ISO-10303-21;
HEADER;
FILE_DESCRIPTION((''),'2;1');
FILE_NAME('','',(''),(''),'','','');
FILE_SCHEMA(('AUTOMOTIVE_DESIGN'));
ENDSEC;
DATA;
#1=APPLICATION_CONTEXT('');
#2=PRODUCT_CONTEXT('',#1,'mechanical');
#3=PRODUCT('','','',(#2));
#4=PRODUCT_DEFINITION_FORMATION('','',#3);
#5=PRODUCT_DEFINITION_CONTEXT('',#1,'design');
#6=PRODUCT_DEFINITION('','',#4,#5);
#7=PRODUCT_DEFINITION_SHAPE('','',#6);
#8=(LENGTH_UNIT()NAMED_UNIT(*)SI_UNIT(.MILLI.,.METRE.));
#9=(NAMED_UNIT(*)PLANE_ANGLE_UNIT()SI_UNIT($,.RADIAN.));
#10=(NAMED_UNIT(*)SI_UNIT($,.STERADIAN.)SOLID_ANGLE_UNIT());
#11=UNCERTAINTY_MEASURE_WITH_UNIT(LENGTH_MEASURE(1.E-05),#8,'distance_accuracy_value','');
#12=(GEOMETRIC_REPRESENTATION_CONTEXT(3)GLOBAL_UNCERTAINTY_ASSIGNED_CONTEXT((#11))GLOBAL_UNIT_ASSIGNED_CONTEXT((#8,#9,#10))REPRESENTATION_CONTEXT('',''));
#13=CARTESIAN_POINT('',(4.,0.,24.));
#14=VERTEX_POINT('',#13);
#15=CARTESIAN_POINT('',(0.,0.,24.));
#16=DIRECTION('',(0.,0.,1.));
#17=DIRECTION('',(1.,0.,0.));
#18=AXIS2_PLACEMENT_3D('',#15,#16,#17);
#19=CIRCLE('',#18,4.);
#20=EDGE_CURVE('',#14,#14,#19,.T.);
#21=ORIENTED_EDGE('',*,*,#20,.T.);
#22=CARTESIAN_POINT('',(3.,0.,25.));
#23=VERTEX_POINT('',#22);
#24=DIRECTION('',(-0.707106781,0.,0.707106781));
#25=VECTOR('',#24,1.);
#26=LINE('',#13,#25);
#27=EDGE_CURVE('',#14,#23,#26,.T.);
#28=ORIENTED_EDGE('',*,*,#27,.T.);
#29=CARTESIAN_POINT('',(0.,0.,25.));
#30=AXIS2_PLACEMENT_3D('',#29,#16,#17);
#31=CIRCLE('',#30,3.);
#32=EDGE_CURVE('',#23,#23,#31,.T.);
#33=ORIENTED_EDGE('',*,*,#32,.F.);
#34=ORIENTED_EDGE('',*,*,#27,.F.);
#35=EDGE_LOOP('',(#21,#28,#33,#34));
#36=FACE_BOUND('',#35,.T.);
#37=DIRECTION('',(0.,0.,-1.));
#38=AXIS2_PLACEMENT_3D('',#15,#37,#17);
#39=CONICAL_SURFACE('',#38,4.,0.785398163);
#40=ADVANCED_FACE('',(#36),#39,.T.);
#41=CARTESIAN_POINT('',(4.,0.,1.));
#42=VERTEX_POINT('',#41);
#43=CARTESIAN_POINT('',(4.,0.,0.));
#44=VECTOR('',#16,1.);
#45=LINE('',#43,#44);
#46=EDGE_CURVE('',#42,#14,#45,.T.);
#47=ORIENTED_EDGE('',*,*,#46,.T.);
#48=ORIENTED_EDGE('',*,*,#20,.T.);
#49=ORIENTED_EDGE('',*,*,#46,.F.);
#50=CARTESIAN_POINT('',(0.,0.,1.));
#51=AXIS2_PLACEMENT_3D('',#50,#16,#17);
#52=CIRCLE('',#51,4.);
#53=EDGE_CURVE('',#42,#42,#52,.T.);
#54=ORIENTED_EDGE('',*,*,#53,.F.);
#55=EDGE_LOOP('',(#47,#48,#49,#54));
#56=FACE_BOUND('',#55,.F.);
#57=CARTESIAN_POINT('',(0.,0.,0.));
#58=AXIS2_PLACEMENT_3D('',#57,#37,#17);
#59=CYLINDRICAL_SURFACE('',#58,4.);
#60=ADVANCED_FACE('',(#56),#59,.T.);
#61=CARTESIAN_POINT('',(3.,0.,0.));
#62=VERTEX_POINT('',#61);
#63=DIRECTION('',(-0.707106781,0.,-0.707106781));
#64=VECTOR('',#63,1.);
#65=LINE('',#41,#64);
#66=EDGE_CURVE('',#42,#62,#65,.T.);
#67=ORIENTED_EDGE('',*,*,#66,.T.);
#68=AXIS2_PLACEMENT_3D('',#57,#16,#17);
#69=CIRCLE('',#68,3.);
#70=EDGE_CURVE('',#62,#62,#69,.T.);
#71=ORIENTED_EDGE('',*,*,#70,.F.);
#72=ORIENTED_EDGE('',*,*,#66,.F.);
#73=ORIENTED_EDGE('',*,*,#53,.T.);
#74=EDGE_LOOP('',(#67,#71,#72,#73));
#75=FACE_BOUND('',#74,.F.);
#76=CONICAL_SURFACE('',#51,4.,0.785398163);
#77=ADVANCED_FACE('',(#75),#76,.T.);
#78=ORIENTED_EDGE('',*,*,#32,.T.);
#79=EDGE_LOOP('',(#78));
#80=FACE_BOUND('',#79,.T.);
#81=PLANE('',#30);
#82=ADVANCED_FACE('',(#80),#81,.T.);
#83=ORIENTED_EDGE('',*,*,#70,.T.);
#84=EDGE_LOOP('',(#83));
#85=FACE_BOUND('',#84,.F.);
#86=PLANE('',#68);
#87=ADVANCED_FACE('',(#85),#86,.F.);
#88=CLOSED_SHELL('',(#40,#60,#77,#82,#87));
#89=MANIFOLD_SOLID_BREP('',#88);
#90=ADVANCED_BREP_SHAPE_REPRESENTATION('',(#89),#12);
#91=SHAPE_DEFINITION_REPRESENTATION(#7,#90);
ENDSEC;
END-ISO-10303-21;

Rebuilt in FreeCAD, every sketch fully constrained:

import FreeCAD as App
import Part
import Sketcher

V = App.Vector


def edges_at(feature, points):
    """Names of the edges that pass closest to the given points."""
    edges = feature.Shape.Edges
    near = lambda p: min(range(len(edges)), key=lambda i: edges[i].distToShape(Part.Vertex(*p))[0])
    return sorted({f"Edge{near(p) + 1}" for p in points})

doc = App.newDocument("Part")
body = doc.addObject("PartDesign::Body", "Body")

# Sketch on XY plane
sketch1 = doc.addObject("Sketcher::SketchObject", "Sketch")
body.addObject(sketch1)
sketch1.AttachmentSupport = (doc.XY_Plane, [""])
sketch1.MapMode = "FlatFace"
sketch1.addGeometry(Part.Circle(V(0, 0, 0), V(0, 0, 1), 4), False)
sketch1.addConstraint([
    Sketcher.Constraint("Coincident", 0, 3, -1, 1),
    Sketcher.Constraint("Diameter", 0, 8.0),
])
pad1 = doc.addObject("PartDesign::Pad", "Pad")
body.addObject(pad1)
pad1.Profile = sketch1
pad1.Length = 25
doc.recompute()

chamfer = doc.addObject("PartDesign::Chamfer", "Chamfer")
body.addObject(chamfer)
chamfer.Base = (pad1, edges_at(pad1, [(-4, 0, 25), (-4, 0, 0)]))
chamfer.ChamferType = "Two distances"
chamfer.Size = 1
chamfer.Size2 = 1

doc.recompute()
